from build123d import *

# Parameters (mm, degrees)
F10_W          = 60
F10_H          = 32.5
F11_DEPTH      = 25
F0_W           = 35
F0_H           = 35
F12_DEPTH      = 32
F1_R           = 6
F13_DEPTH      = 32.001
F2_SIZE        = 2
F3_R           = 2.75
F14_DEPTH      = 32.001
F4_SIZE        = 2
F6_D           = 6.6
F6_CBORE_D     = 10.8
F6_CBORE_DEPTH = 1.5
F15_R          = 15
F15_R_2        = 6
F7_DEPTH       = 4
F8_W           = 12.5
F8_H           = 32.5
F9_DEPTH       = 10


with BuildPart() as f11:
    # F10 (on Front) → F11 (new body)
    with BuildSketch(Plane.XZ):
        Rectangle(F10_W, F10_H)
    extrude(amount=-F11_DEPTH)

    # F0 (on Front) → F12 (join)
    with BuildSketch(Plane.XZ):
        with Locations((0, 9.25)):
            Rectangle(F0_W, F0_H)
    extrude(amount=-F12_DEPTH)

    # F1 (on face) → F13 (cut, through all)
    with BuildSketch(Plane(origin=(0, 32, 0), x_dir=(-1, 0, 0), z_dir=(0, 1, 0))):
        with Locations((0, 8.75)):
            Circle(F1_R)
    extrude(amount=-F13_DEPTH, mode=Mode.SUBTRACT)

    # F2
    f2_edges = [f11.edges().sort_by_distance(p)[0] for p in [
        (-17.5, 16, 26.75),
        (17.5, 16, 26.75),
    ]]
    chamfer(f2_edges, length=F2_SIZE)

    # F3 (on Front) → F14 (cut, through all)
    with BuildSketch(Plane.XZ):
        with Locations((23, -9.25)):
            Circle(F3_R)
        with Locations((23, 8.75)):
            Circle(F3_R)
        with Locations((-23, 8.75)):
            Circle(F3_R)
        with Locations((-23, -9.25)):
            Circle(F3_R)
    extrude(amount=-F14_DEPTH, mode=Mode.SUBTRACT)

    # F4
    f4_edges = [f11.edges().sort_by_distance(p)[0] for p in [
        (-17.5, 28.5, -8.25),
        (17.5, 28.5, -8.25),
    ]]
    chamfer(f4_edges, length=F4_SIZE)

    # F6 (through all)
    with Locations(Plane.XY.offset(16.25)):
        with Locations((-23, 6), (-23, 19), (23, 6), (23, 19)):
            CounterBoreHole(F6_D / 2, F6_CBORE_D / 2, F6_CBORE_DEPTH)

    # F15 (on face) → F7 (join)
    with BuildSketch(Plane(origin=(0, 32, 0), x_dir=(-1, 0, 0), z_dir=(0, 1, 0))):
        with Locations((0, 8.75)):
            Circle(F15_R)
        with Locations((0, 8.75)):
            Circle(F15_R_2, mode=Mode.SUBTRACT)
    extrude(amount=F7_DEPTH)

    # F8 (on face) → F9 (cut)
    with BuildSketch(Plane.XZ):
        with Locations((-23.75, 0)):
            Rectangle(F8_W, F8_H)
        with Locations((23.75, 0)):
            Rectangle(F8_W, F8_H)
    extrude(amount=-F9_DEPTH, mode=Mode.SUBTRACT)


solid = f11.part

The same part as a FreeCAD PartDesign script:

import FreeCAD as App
import Part
import Sketcher
Q = App.Units.Quantity


def edges_at(feature, points):
    """Names of the edges that pass closest to the given points."""
    edges = feature.Shape.Edges
    near = lambda p: min(range(len(edges)), key=lambda i: edges[i].distToShape(Part.Vertex(*p))[0])
    return sorted({f"Edge{near(p) + 1}" for p in points})


def add_polygon(sketch, points):
    """Adds a closed chain of lines whose ends are joined by coincident constraints."""
    first, n = sketch.GeometryCount, len(points)
    for a, b in zip(points, points[1:] + points[:1]):
        sketch.addGeometry(Part.LineSegment(App.Vector(*a, 0), App.Vector(*b, 0)), False)
    for i in range(n):
        sketch.addConstraint(Sketcher.Constraint("Coincident", first + i, 2, first + (i + 1) % n, 1))

doc = App.newDocument("Part")
body = doc.addObject("PartDesign::Body", "Body")

# Sketch on XZ plane
sketch1 = body.newObject("Sketcher::SketchObject", "Sketch")
sketch1.AttachmentSupport = (doc.getObject("XZ_Plane"), [""])
sketch1.MapMode = "FlatFace"
add_polygon(sketch1, [(-30, 16), (-30, -16), (30, -16), (30, 16)])  # lines 0-3
sketch1.addConstraint(Sketcher.Constraint("Vertical", 0))
sketch1.addConstraint(Sketcher.Constraint("Horizontal", 1))
sketch1.addConstraint(Sketcher.Constraint("Vertical", 2))
sketch1.addConstraint(Sketcher.Constraint("Horizontal", 3))
sketch1.addConstraint(Sketcher.Constraint("Symmetric", 0, 2, 2, 2, -1, 1))
sketch1.addConstraint(Sketcher.Constraint("DistanceX", 1, 1, 1, 2, Q("60 mm")))
sketch1.addConstraint(Sketcher.Constraint("DistanceY", 0, 2, 0, 1, Q("32.5 mm")))
pad1 = body.newObject("PartDesign::Pad", "Pad")
pad1.Profile = sketch1
pad1.Length = 25
pad1.Reversed = True

# Sketch on XZ plane
sketch2 = body.newObject("Sketcher::SketchObject", "Sketch001")
sketch2.AttachmentSupport = (doc.getObject("XZ_Plane"), [""])
sketch2.MapMode = "FlatFace"
add_polygon(sketch2, [(-18, 27), (-18, -8), (18, -8), (18, 27)])  # lines 0-3
sketch2.addConstraint(Sketcher.Constraint("Vertical", 0))
sketch2.addConstraint(Sketcher.Constraint("Horizontal", 1))
sketch2.addConstraint(Sketcher.Constraint("Vertical", 2))
sketch2.addConstraint(Sketcher.Constraint("Horizontal", 3))
sketch2.addConstraint(Sketcher.Constraint("Equal", 3, 0))
sketch2.addConstraint(Sketcher.Constraint("DistanceX", 1, 1, 1, 2, Q("35 mm")))
sketch2.addConstraint(Sketcher.Constraint("DistanceX", 0, 2, -1, 1, Q("17.5 mm")))
sketch2.addConstraint(Sketcher.Constraint("DistanceY", 0, 2, -1, 1, Q("8.25 mm")))
pad2 = body.newObject("PartDesign::Pad", "Pad001")
pad2.Profile = sketch2
pad2.Length = 32
pad2.Reversed = True

# Sketch on XZ plane
sketch3 = body.newObject("Sketcher::SketchObject", "Sketch002")
sketch3.AttachmentSupport = (doc.getObject("XZ_Plane"), [""])
sketch3.MapMode = "FlatFace"
sketch3.AttachmentOffset = App.Placement(App.Vector(0, 0, -32), App.Rotation())
sketch3.addGeometry(Part.Circle(App.Vector(0, 9, 0), App.Vector(0, 0, 1), 6), False)
sketch3.addConstraint(Sketcher.Constraint("PointOnObject", 0, 3, -2))
sketch3.addConstraint(Sketcher.Constraint("Diameter", 0, Q("12 mm")))
sketch3.addConstraint(Sketcher.Constraint("DistanceY", -1, 1, 0, 3, Q("8.75 mm")))
pocket1 = body.newObject("PartDesign::Pocket", "Pocket")
pocket1.Profile = sketch3
pocket1.Type = "ThroughAll"
pocket1.Reversed = True
doc.recompute()

chamfer = body.newObject("PartDesign::Chamfer", "Chamfer")
chamfer.Base = (pocket1, edges_at(pocket1, [(-17.5, 16, 26.75), (17.5, 16, 26.75)]))
chamfer.Size = 2

# Sketch on XZ plane
sketch4 = body.newObject("Sketcher::SketchObject", "Sketch003")
sketch4.AttachmentSupport = (doc.getObject("XZ_Plane"), [""])
sketch4.MapMode = "FlatFace"
sketch4.addGeometry(Part.Circle(App.Vector(23, -9.2, 0), App.Vector(0, 0, 1), 2.8), False)
sketch4.addGeometry(Part.Circle(App.Vector(23, 8.8, 0), App.Vector(0, 0, 1), 2.8), False)
sketch4.addGeometry(Part.Circle(App.Vector(-23, 8.8, 0), App.Vector(0, 0, 1), 2.8), False)
sketch4.addGeometry(Part.Circle(App.Vector(-23, -9.2, 0), App.Vector(0, 0, 1), 2.8), False)
sketch4.addConstraint(Sketcher.Constraint("Equal", 0, 1))
sketch4.addConstraint(Sketcher.Constraint("Equal", 1, 2))
sketch4.addConstraint(Sketcher.Constraint("Equal", 2, 3))
sketch4.addConstraint(Sketcher.Constraint("Symmetric", 1, 3, 2, 3, -2))
sketch4.addConstraint(Sketcher.Constraint("Symmetric", 0, 3, 3, 3, -2))
sketch4.addConstraint(Sketcher.Constraint("Vertical", 0, 3, 1, 3))
sketch4.addConstraint(Sketcher.Constraint("Diameter", 0, Q("5.5 mm")))
sketch4.addConstraint(Sketcher.Constraint("DistanceX", -1, 1, 0, 3, Q("23 mm")))
sketch4.addConstraint(Sketcher.Constraint("DistanceY", 0, 3, 1, 3, Q("18 mm")))
sketch4.addConstraint(Sketcher.Constraint("DistanceY", 0, 3, -1, 1, Q("9.25 mm")))
pocket2 = body.newObject("PartDesign::Pocket", "Pocket001")
pocket2.Profile = sketch4
pocket2.Type = "ThroughAll"
doc.recompute()

chamfer2 = body.newObject("PartDesign::Chamfer", "Chamfer001")
chamfer2.Base = (pocket2, edges_at(pocket2, [(-17.5, 28.5, -8.25), (17.5, 28.5, -8.25)]))
chamfer2.Size = 2

# Sketch on XY plane
sketch5 = body.newObject("Sketcher::SketchObject", "Sketch004")
sketch5.AttachmentSupport = (doc.getObject("XY_Plane"), [""])
sketch5.MapMode = "FlatFace"
sketch5.AttachmentOffset = App.Placement(App.Vector(0, 0, 16.25), App.Rotation())
sketch5.addGeometry(Part.Circle(App.Vector(-23, 6, 0), App.Vector(0, 0, 1), 3.3), False)
sketch5.addGeometry(Part.Circle(App.Vector(-23, 19, 0), App.Vector(0, 0, 1), 3.3), False)
sketch5.addGeometry(Part.Circle(App.Vector(23, 6, 0), App.Vector(0, 0, 1), 3.3), False)
sketch5.addGeometry(Part.Circle(App.Vector(23, 19, 0), App.Vector(0, 0, 1), 3.3), False)
sketch5.addConstraint(Sketcher.Constraint("Equal", 0, 1))
sketch5.addConstraint(Sketcher.Constraint("Equal", 1, 2))
sketch5.addConstraint(Sketcher.Constraint("Equal", 2, 3))
sketch5.addConstraint(Sketcher.Constraint("Symmetric", 0, 3, 2, 3, -2))
sketch5.addConstraint(Sketcher.Constraint("Symmetric", 1, 3, 3, 3, -2))
sketch5.addConstraint(Sketcher.Constraint("Vertical", 0, 3, 1, 3))
sketch5.addConstraint(Sketcher.Constraint("Diameter", 0, Q("6.6 mm")))
sketch5.addConstraint(Sketcher.Constraint("DistanceX", 0, 3, -1, 1, Q("23 mm")))
sketch5.addConstraint(Sketcher.Constraint("DistanceY", -1, 1, 0, 3, Q("6 mm")))
sketch5.addConstraint(Sketcher.Constraint("DistanceY", -1, 1, 1, 3, Q("19 mm")))
doc.recompute()
hole = body.newObject("PartDesign::Hole", "Hole")
hole.Profile = sketch5
hole.ThreadType = "None"
hole.Diameter = 6.6
hole.DepthType = "ThroughAll"
hole.HoleCutType = "Counterbore"
hole.HoleCutDiameter = 10.8
hole.HoleCutDepth = 1.5

# Sketch on XZ plane
sketch6 = body.newObject("Sketcher::SketchObject", "Sketch005")
sketch6.AttachmentSupport = (doc.getObject("XZ_Plane"), [""])
sketch6.MapMode = "FlatFace"
sketch6.AttachmentOffset = App.Placement(App.Vector(0, 0, -32), App.Rotation())
sketch6.addGeometry(Part.Circle(App.Vector(0, 9, 0), App.Vector(0, 0, 1), 15), False)
sketch6.addGeometry(Part.Circle(App.Vector(0, 9, 0), App.Vector(0, 0, 1), 6), False)
sketch6.addConstraint(Sketcher.Constraint("Coincident", 1, 3, 0, 3))
sketch6.addConstraint(Sketcher.Constraint("PointOnObject", 0, 3, -2))
sketch6.addConstraint(Sketcher.Constraint("Diameter", 0, Q("30 mm")))
sketch6.addConstraint(Sketcher.Constraint("Diameter", 1, Q("12 mm")))
sketch6.addConstraint(Sketcher.Constraint("DistanceY", -1, 1, 0, 3, Q("8.75 mm")))
pad3 = body.newObject("PartDesign::Pad", "Pad002")
pad3.Profile = sketch6
pad3.Length = 4
pad3.Reversed = True

# Sketch on XZ plane
sketch7 = body.newObject("Sketcher::SketchObject", "Sketch006")
sketch7.AttachmentSupport = (doc.getObject("XZ_Plane"), [""])
sketch7.MapMode = "FlatFace"
add_polygon(sketch7, [(-30, 16), (-30, -16), (-18, -16), (-18, 16)])  # lines 0-3
add_polygon(sketch7, [(18, 16), (18, -16), (30, -16), (30, 16)])  # lines 4-7
sketch7.addConstraint(Sketcher.Constraint("Vertical", 0))
sketch7.addConstraint(Sketcher.Constraint("Horizontal", 1))
sketch7.addConstraint(Sketcher.Constraint("Vertical", 2))
sketch7.addConstraint(Sketcher.Constraint("Horizontal", 3))
sketch7.addConstraint(Sketcher.Constraint("Vertical", 4))
sketch7.addConstraint(Sketcher.Constraint("Horizontal", 5))
sketch7.addConstraint(Sketcher.Constraint("Vertical", 6))
sketch7.addConstraint(Sketcher.Constraint("Horizontal", 7))
sketch7.addConstraint(Sketcher.Constraint("Symmetric", 2, 2, 4, 2, -1, 1))
sketch7.addConstraint(Sketcher.Constraint("Symmetric", 0, 2, 6, 2, -1, 1))
sketch7.addConstraint(Sketcher.Constraint("Horizontal", 1, 2, 4, 2))
sketch7.addConstraint(Sketcher.Constraint("DistanceX", 1, 1, 1, 2, Q("12.5 mm")))
sketch7.addConstraint(Sketcher.Constraint("DistanceY", 0, 2, 0, 1, Q("32.5 mm")))
sketch7.addConstraint(Sketcher.Constraint("DistanceX", 0, 2, -1, 1, Q("30 mm")))
pocket3 = body.newObject("PartDesign::Pocket", "Pocket002")
pocket3.Profile = sketch7
pocket3.Length = 10

doc.recompute()
